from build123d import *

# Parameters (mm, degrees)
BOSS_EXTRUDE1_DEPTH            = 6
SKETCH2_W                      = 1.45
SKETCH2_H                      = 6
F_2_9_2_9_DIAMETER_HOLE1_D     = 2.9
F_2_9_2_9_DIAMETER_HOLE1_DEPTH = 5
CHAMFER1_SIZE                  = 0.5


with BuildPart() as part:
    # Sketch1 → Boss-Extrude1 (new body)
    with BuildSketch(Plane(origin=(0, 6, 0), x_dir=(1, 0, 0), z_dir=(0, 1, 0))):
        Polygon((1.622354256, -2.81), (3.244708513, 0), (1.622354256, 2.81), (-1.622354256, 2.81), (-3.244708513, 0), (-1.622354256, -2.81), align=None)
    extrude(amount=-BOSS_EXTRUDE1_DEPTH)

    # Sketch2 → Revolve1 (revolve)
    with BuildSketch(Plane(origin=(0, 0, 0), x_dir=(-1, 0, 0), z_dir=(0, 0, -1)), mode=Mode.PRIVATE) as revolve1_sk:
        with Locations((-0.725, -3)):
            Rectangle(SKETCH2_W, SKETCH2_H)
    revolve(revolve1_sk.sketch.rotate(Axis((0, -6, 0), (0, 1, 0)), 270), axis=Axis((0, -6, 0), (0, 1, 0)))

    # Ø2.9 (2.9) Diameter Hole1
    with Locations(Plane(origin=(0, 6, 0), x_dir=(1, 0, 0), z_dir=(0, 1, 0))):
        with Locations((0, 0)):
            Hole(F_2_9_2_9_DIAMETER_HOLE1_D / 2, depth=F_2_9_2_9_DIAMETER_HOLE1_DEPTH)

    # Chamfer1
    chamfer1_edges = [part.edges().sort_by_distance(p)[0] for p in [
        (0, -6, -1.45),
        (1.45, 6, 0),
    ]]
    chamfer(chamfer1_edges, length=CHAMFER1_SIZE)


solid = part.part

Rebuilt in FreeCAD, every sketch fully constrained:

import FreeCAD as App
import Part
import Sketcher

V = App.Vector
Q = App.Units.Quantity


def edges_at(feature, points):
    """Names of the edges that pass closest to the given points."""
    edges = feature.Shape.Edges
    near = lambda p: min(range(len(edges)), key=lambda i: edges[i].distToShape(Part.Vertex(*p))[0])
    return sorted({f"Edge{near(p) + 1}" for p in points})

doc = App.newDocument("Part")
params = doc.addObject("Spreadsheet::Sheet", "Params")
for row, (alias, value) in enumerate([
    ("pad1_length", "6 mm"),
    ("sketch2_height", "6 mm"),
    ("sketch2_width", "1.45 mm"),
    ("revolution_angle", "360 deg"),
    ("sketch3_diameter", "2.9 mm"),
    ("hole_diameter", "2.9 mm"),
    ("hole_depth", "5 mm"),
    ("chamfer_size", "0.5 mm"),
], start=1):
    params.set(f"A{row}", alias)
    params.set(f"B{row}", "=" + value)
    params.setAlias(f"B{row}", alias)

body = doc.addObject("PartDesign::Body", "Body")

sketch1 = doc.addObject("Sketcher::SketchObject", "Sketch")
body.addObject(sketch1)
sketch1.AttachmentSupport = (doc.XZ_Plane, [""])
sketch1.MapMode = "FlatFace"
sketch1.AttachmentOffset = App.Placement(V(0, 0, -6), App.Rotation())
sketch1.addGeometry([
    Part.LineSegment(V(1.6, 2.8, 0), V(3.2, 0, 0)),
    Part.LineSegment(V(3.2, 0, 0), V(1.6, -2.8, 0)),
    Part.LineSegment(V(1.6, -2.8, 0), V(-1.6, -2.8, 0)),
    Part.LineSegment(V(-1.6, -2.8, 0), V(-3.2, 0, 0)),
    Part.LineSegment(V(-3.2, 0, 0), V(-1.6, 2.8, 0)),
    Part.LineSegment(V(-1.6, 2.8, 0), V(1.6, 2.8, 0)),
], False)
sketch1.addConstraint([
    Sketcher.Constraint("Coincident", 0, 2, 1, 1),
    Sketcher.Constraint("Coincident", 1, 2, 2, 1),
    Sketcher.Constraint("Coincident", 2, 2, 3, 1),
    Sketcher.Constraint("Coincident", 3, 2, 4, 1),
    Sketcher.Constraint("Coincident", 4, 2, 5, 1),
    Sketcher.Constraint("Coincident", 5, 2, 0, 1),
    Sketcher.Constraint("Horizontal", 2),
    Sketcher.Constraint("Horizontal", 5),
    Sketcher.Constraint("Symmetric", 0, 2, 3, 2, -1, 1),
    Sketcher.Constraint("Symmetric", 1, 2, 4, 2, -1, 1),
    Sketcher.Constraint("PointOnObject", 0, 2, -1),
    Sketcher.Constraint("Parallel", 0, 3),
    Sketcher.Constraint("Vertical", 2, 2, 4, 2),
    Sketcher.Constraint("Angle", 0, Q("-60 deg")),
    Sketcher.Constraint("DistanceY", 1, 2, -1, 1, 2.81),
    Sketcher.Constraint("DistanceX", 2, 2, 2, 1, 3.244709),
])
pad1 = doc.addObject("PartDesign::Pad", "Pad")
body.addObject(pad1)
pad1.Profile = sketch1
pad1.setExpression("Length", "Params.pad1_length")

sketch2 = doc.addObject("Sketcher::SketchObject", "Sketch001")
body.addObject(sketch2)
sketch2.AttachmentSupport = (doc.XY_Plane, [""])
sketch2.MapMode = "FlatFace"
sketch2.addGeometry([
    Part.LineSegment(V(1.4, 0, 0), V(1.4, -6, 0)),
    Part.LineSegment(V(1.4, -6, 0), V(0, -6, 0)),
    Part.LineSegment(V(0, -6, 0), V(0, 0, 0)),
    Part.LineSegment(V(0, 0, 0), V(1.4, 0, 0)),
], False)
sketch2.addConstraint([
    Sketcher.Constraint("Coincident", 0, 2, 1, 1),
    Sketcher.Constraint("Coincident", 1, 2, 2, 1),
    Sketcher.Constraint("Coincident", 2, 2, 3, 1),
    Sketcher.Constraint("Coincident", 3, 2, 0, 1),
    Sketcher.Constraint("Vertical", 0),
    Sketcher.Constraint("Horizontal", 1),
    Sketcher.Constraint("Vertical", 2),
    Sketcher.Constraint("Horizontal", 3),
    Sketcher.Constraint("Coincident", 2, 2, -1, 1),
    Sketcher.Constraint("DistanceY", 0, 2, 0, 1, 6.0),
    Sketcher.Constraint("DistanceX", 1, 2, 1, 1, 1.45),
])
sketch2.setExpression("Constraints[9]", "Params.sketch2_height")
sketch2.setExpression("Constraints[10]", "Params.sketch2_width")
revolution = doc.addObject("PartDesign::Revolution", "Revolution")
body.addObject(revolution)
revolution.Profile = sketch2
revolution.ReferenceAxis = (sketch2, ["V_Axis"])
revolution.setExpression("Angle", "Params.revolution_angle")

sketch3 = doc.addObject("Sketcher::SketchObject", "Sketch002")
body.addObject(sketch3)
sketch3.AttachmentSupport = (doc.XZ_Plane, [""])
sketch3.MapMode = "FlatFace"
sketch3.AttachmentOffset = App.Placement(V(0, 0, -6), App.Rotation())
sketch3.addGeometry(Part.Circle(V(0, 0, 0), V(0, 0, 1), 1.4), False)
sketch3.addConstraint([
    Sketcher.Constraint("Coincident", 0, 3, -1, 1),
    Sketcher.Constraint("Diameter", 0, 2.9),
])
sketch3.setExpression("Constraints[1]", "Params.sketch3_diameter")
doc.recompute()
hole = doc.addObject("PartDesign::Hole", "Hole")
body.addObject(hole)
hole.Profile = sketch3
hole.ThreadType = "None"
hole.setExpression("Diameter", "Params.hole_diameter")
hole.DepthType = "Dimension"
hole.setExpression("Depth", "Params.hole_depth")
hole.DrillPoint = "Flat"
hole.Reversed = True
doc.recompute()

chamfer = doc.addObject("PartDesign::Chamfer", "Chamfer")
body.addObject(chamfer)
chamfer.Base = (hole, edges_at(hole, [(0, -6, -1.45), (1.45, 6, 0)]))
chamfer.setExpression("Size", "Params.chamfer_size")

doc.recompute()
